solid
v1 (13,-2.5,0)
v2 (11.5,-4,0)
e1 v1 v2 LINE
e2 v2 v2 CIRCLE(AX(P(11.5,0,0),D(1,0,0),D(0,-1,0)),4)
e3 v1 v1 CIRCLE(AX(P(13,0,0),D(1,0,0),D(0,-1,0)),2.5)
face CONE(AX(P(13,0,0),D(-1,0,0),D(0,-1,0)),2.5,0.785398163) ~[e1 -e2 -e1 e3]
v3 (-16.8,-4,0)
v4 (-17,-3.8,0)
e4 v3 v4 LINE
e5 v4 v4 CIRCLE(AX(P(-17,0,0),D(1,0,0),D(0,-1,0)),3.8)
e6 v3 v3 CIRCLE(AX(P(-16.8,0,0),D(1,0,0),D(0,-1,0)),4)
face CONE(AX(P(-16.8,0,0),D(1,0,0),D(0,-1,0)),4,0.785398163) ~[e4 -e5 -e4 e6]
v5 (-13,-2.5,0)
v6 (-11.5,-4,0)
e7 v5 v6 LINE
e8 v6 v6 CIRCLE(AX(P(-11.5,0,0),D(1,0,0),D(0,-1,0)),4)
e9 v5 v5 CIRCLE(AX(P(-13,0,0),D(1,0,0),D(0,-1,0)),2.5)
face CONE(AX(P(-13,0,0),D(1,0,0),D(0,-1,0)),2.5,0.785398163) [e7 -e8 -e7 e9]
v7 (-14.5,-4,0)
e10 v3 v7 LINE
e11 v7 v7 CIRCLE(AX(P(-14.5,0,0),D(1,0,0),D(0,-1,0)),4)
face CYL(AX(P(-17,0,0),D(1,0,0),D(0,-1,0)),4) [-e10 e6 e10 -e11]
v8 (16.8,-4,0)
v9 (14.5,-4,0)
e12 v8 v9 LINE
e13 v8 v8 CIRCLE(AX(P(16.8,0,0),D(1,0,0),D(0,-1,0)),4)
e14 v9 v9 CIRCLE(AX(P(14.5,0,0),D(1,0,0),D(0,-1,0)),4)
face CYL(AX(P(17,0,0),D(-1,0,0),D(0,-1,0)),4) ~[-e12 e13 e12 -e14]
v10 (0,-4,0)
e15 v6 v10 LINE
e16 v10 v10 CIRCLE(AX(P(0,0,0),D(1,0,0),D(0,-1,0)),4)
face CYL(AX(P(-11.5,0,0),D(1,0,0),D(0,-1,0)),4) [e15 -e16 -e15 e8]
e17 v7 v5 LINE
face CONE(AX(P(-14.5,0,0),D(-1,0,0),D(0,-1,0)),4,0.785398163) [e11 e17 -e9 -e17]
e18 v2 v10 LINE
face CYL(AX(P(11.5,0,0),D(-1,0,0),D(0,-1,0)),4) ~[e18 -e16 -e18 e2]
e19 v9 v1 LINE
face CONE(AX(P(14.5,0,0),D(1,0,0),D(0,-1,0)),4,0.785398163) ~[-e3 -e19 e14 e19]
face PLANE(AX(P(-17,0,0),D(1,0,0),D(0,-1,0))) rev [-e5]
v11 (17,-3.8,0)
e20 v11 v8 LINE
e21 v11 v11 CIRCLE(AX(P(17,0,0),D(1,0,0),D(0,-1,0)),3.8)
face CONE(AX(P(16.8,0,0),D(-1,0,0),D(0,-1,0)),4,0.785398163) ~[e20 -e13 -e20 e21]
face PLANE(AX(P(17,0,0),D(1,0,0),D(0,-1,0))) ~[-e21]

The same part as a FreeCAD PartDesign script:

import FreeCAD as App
import Part
import Sketcher

V = App.Vector


def edges_at(feature, points):
    """Names of the edges that pass closest to the given points."""
    edges = feature.Shape.Edges
    near = lambda p: min(range(len(edges)), key=lambda i: edges[i].distToShape(Part.Vertex(*p))[0])
    return sorted({f"Edge{near(p) + 1}" for p in points})


def add_polygon(sketch, points):
    """Adds a closed chain of lines whose ends are joined by coincident constraints."""
    first, n = sketch.GeometryCount, len(points)
    for a, b in zip(points, points[1:] + points[:1]):
        sketch.addGeometry(Part.LineSegment(App.Vector(*a, 0), App.Vector(*b, 0)), False)
    for i in range(n):
        sketch.addConstraint(Sketcher.Constraint("Coincident", first + i, 2, first + (i + 1) % n, 1))

doc = App.newDocument("Part")
body = doc.addObject("PartDesign::Body", "Body")

# Sketch on XY plane
sketch1 = doc.addObject("Sketcher::SketchObject", "Sketch")
body.addObject(sketch1)
sketch1.AttachmentSupport = (doc.XY_Plane, [""])
sketch1.MapMode = "FlatFace"
add_polygon(sketch1, [(17, 0), (-17, 0), (-17, -4), (-14.5, -4), (-13, -2.5), (-11.5, -4), (11.5, -4), (13, -2.5), (14.5, -4), (17, -4)])  # lines 0-9
sketch1.addConstraint([
    Sketcher.Constraint("Horizontal", 0),
    Sketcher.Constraint("Vertical", 1),
    Sketcher.Constraint("Horizontal", 2),
    Sketcher.Constraint("Horizontal", 5),
    Sketcher.Constraint("Horizontal", 8),
    Sketcher.Constraint("Vertical", 9),
    Sketcher.Constraint("Symmetric", 0, 2, 9, 2, -1, 1),
    Sketcher.Constraint("Symmetric", 3, 2, 6, 2, -2),
    Sketcher.Constraint("Symmetric", 2, 2, 7, 2, -2),
    Sketcher.Constraint("Perpendicular", 3, 4),
    Sketcher.Constraint("Perpendicular", 4, 6),
    Sketcher.Constraint("Perpendicular", 6, 7),
    Sketcher.Constraint("Horizontal", 2, 2, 4, 2),
    Sketcher.Constraint("DistanceX", 0, 2, 0, 1, 34.0),
    Sketcher.Constraint("DistanceY", 1, 2, 1, 1, 4.0),
    Sketcher.Constraint("DistanceX", 1, 2, 3, 2, 4.0),
    Sketcher.Constraint("DistanceX", 2, 2, 4, 2, 3.0),
])
revolution = doc.addObject("PartDesign::Revolution", "Revolution")
body.addObject(revolution)
revolution.Profile = sketch1
revolution.ReferenceAxis = (sketch1, ["H_Axis"])
revolution.Angle = 360
doc.recompute()

chamfer = doc.addObject("PartDesign::Chamfer", "Chamfer")
body.addObject(chamfer)
chamfer.Base = (revolution, edges_at(revolution, [(-17, 4, 0), (17, 4, 0)]))
chamfer.Size = 0.2

doc.recompute()
